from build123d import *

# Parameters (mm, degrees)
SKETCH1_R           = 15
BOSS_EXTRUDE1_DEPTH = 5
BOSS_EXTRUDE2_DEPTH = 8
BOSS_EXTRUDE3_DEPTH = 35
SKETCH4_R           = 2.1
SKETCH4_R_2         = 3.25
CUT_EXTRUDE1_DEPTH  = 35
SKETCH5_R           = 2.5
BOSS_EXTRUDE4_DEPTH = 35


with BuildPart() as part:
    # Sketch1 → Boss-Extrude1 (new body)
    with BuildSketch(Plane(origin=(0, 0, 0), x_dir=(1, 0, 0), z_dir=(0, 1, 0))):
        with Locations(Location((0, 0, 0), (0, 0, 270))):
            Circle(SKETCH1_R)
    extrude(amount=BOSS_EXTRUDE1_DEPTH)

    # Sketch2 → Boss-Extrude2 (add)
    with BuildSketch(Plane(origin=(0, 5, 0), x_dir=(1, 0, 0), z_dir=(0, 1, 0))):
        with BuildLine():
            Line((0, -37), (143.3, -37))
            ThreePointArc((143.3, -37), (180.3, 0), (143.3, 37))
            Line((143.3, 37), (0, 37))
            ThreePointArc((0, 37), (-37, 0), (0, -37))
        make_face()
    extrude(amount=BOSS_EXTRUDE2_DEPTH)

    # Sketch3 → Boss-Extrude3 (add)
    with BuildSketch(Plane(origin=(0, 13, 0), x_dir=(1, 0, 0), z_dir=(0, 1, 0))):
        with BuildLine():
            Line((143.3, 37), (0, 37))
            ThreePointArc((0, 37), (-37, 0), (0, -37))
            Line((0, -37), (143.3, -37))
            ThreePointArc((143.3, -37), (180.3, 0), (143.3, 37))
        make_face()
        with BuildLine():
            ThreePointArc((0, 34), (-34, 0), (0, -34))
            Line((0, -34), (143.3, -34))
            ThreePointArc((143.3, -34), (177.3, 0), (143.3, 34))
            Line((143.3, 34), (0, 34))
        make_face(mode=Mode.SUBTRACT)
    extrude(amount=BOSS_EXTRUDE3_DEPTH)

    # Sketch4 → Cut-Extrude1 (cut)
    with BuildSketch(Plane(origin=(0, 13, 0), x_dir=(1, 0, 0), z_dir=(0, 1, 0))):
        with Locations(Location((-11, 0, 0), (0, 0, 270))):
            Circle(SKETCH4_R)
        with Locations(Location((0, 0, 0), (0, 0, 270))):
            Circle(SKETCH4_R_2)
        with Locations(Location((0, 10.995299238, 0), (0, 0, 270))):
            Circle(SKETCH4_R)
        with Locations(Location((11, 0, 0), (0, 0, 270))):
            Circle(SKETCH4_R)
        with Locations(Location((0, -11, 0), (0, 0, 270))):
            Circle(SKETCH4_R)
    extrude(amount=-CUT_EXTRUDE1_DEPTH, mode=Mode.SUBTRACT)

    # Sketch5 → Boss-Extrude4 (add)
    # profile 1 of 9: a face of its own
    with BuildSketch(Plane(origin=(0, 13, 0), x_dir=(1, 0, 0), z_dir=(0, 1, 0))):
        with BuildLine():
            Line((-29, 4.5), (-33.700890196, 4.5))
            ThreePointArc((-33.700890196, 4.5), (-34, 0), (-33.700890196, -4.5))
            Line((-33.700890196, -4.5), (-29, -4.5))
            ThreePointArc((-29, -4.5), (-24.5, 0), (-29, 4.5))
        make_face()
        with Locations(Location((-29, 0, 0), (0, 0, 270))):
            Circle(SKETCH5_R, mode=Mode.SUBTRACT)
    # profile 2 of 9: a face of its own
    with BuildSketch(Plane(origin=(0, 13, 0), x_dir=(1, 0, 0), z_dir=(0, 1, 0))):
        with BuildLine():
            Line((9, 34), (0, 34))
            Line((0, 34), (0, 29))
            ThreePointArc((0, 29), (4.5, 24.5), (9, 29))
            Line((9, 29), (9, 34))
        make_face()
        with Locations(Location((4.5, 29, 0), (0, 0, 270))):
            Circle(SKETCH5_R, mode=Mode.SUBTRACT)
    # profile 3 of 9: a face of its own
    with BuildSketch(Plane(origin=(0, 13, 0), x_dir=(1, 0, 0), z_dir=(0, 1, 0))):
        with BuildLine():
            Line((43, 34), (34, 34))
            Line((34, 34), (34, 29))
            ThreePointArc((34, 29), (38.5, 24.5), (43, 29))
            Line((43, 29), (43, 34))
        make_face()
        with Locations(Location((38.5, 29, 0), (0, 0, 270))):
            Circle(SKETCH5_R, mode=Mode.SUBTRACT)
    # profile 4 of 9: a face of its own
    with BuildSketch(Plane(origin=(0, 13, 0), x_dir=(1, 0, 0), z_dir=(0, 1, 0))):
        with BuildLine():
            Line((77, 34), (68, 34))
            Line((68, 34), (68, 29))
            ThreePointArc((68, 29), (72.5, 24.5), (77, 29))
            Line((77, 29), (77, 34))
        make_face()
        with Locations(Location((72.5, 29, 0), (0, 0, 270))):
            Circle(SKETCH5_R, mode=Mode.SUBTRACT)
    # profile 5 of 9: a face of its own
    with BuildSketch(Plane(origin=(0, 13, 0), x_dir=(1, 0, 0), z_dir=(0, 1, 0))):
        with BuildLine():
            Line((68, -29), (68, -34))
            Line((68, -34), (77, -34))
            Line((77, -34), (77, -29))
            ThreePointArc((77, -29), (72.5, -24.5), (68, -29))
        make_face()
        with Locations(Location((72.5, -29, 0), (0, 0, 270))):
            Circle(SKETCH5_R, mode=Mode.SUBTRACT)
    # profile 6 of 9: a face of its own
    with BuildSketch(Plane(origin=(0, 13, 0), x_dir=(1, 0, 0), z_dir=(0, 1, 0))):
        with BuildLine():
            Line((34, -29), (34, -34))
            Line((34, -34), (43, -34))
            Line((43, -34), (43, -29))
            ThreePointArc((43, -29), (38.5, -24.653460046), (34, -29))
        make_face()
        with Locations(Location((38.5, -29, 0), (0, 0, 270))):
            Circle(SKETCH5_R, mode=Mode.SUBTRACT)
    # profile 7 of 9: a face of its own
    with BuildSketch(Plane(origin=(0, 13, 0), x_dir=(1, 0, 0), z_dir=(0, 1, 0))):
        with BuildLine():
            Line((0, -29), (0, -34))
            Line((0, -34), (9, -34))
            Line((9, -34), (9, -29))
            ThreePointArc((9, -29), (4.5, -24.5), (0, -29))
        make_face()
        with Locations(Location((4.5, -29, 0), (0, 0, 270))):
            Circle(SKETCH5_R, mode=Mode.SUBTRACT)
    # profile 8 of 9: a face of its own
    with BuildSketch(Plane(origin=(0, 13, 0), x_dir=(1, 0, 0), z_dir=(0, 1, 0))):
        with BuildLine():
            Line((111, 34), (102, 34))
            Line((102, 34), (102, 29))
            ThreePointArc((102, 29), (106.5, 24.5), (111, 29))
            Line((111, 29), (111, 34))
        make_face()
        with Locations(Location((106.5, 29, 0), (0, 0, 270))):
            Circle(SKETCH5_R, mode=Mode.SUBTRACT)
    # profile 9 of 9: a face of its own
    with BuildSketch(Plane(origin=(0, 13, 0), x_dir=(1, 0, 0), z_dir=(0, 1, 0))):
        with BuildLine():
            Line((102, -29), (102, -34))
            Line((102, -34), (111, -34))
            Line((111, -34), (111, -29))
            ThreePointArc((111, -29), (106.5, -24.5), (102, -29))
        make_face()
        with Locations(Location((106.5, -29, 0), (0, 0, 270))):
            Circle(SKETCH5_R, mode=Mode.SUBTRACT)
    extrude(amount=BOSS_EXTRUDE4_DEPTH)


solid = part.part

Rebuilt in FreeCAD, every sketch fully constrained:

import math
import FreeCAD as App
import Part
import Sketcher
Q = App.Units.Quantity

doc = App.newDocument("Part")
body = doc.addObject("PartDesign::Body", "Body")

sketch1 = doc.addObject("Sketcher::SketchObject", "Sketch")
body.addObject(sketch1)
sketch1.AttachmentSupport = (doc.XZ_Plane, [""])
sketch1.MapMode = "FlatFace"
sketch1.addGeometry(Part.Circle(App.Vector(0, 0, 0), App.Vector(0, 0, 1), 15), False)
sketch1.addConstraint(Sketcher.Constraint("Coincident", 0, 3, -1, 1))
sketch1.addConstraint(Sketcher.Constraint("Diameter", 0, Q("30 mm")))
pad1 = doc.addObject("PartDesign::Pad", "Pad")
body.addObject(pad1)
pad1.Profile = sketch1
pad1.Length = 5
pad1.Reversed = True

sketch2 = doc.addObject("Sketcher::SketchObject", "Sketch001")
body.addObject(sketch2)
sketch2.AttachmentSupport = (doc.XZ_Plane, [""])
sketch2.MapMode = "FlatFace"
sketch2.AttachmentOffset = App.Placement(App.Vector(0, 0, -5), App.Rotation())
sketch2.addGeometry(Part.LineSegment(App.Vector(0, 37, 0), App.Vector(143.3, 37, 0)), False)
sketch2.addGeometry(Part.ArcOfCircle(Part.Circle(App.Vector(143.3, 0, 0), App.Vector(0, 0, 1), 37), math.radians(-90), math.radians(90)), False)
sketch2.addGeometry(Part.LineSegment(App.Vector(143.3, -37, 0), App.Vector(0, -37, 0)), False)
sketch2.addGeometry(Part.ArcOfCircle(Part.Circle(App.Vector(0, 0, 0), App.Vector(0, 0, 1), 37), math.radians(90), math.radians(270)), False)
sketch2.addConstraint(Sketcher.Constraint("Tangent", 0, 2, 1, 2))
sketch2.addConstraint(Sketcher.Constraint("Tangent", 1, 1, 2, 1))
sketch2.addConstraint(Sketcher.Constraint("Tangent", 2, 2, 3, 2))
sketch2.addConstraint(Sketcher.Constraint("Tangent", 3, 1, 0, 1))
sketch2.addConstraint(Sketcher.Constraint("Horizontal", 0))
sketch2.addConstraint(Sketcher.Constraint("Horizontal", 2))
sketch2.addConstraint(Sketcher.Constraint("Coincident", 3, 3, -1, 1))
sketch2.addConstraint(Sketcher.Constraint("Radius", 1, Q("37 mm")))
sketch2.addConstraint(Sketcher.Constraint("DistanceX", 0, 1, 0, 2, Q("143.3 mm")))
pad2 = doc.addObject("PartDesign::Pad", "Pad001")
body.addObject(pad2)
pad2.Profile = sketch2
pad2.Length = 8
pad2.Reversed = True

sketch3 = doc.addObject("Sketcher::SketchObject", "Sketch002")
body.addObject(sketch3)
sketch3.AttachmentSupport = (doc.XZ_Plane, [""])
sketch3.MapMode = "FlatFace"
sketch3.AttachmentOffset = App.Placement(App.Vector(0, 0, -13), App.Rotation())
sketch3.addGeometry(Part.LineSegment(App.Vector(143.3, -37, 0), App.Vector(0, -37, 0)), False)
sketch3.addGeometry(Part.ArcOfCircle(Part.Circle(App.Vector(0, 0, 0), App.Vector(0, 0, 1), 37), math.radians(90), math.radians(270)), False)
sketch3.addGeometry(Part.LineSegment(App.Vector(0, 37, 0), App.Vector(143.3, 37, 0)), False)
sketch3.addGeometry(Part.ArcOfCircle(Part.Circle(App.Vector(143.3, 0, 0), App.Vector(0, 0, 1), 37), math.radians(-90), math.radians(90)), False)
sketch3.addGeometry(Part.ArcOfCircle(Part.Circle(App.Vector(0, 0, 0), App.Vector(0, 0, 1), 34), math.radians(90), math.radians(270)), False)
sketch3.addGeometry(Part.LineSegment(App.Vector(0, -34, 0), App.Vector(143.3, -34, 0)), False)
sketch3.addGeometry(Part.ArcOfCircle(Part.Circle(App.Vector(143.3, 0, 0), App.Vector(0, 0, 1), 34), math.radians(-90), math.radians(90)), False)
sketch3.addGeometry(Part.LineSegment(App.Vector(143.3, 34, 0), App.Vector(0, 34, 0)), False)
sketch3.addConstraint(Sketcher.Constraint("Tangent", 0, 2, 1, 2))
sketch3.addConstraint(Sketcher.Constraint("Tangent", 1, 1, 2, 1))
sketch3.addConstraint(Sketcher.Constraint("Tangent", 2, 2, 3, 2))
sketch3.addConstraint(Sketcher.Constraint("Tangent", 3, 1, 0, 1))
sketch3.addConstraint(Sketcher.Constraint("Tangent", 4, 2, 5, 1))
sketch3.addConstraint(Sketcher.Constraint("Tangent", 5, 2, 6, 1))
sketch3.addConstraint(Sketcher.Constraint("Tangent", 6, 2, 7, 1))
sketch3.addConstraint(Sketcher.Constraint("Tangent", 7, 2, 4, 1))
sketch3.addConstraint(Sketcher.Constraint("Horizontal", 0))
sketch3.addConstraint(Sketcher.Constraint("Horizontal", 2))
sketch3.addConstraint(Sketcher.Constraint("Horizontal", 5))
sketch3.addConstraint(Sketcher.Constraint("Horizontal", 7))
sketch3.addConstraint(Sketcher.Constraint("Coincident", 1, 3, -1, 1))
sketch3.addConstraint(Sketcher.Constraint("Coincident", 4, 3, -1, 1))
sketch3.addConstraint(Sketcher.Constraint("Vertical", 6, 3, 2, 2))
sketch3.addConstraint(Sketcher.Constraint("Radius", 1, Q("37 mm")))
sketch3.addConstraint(Sketcher.Constraint("Radius", 4, Q("34 mm")))
sketch3.addConstraint(Sketcher.Constraint("DistanceX", 0, 2, 0, 1, Q("143.3 mm")))
pad3 = doc.addObject("PartDesign::Pad", "Pad002")
body.addObject(pad3)
pad3.Profile = sketch3
pad3.Length = 35
pad3.Reversed = True

sketch4 = doc.addObject("Sketcher::SketchObject", "Sketch003")
body.addObject(sketch4)
sketch4.AttachmentSupport = (doc.XZ_Plane, [""])
sketch4.MapMode = "FlatFace"
sketch4.AttachmentOffset = App.Placement(App.Vector(0, 0, -13), App.Rotation())
sketch4.addGeometry(Part.Circle(App.Vector(-11, 0, 0), App.Vector(0, 0, 1), 2.1), False)
sketch4.addGeometry(Part.Circle(App.Vector(0, 0, 0), App.Vector(0, 0, 1), 3.25), False)
sketch4.addGeometry(Part.Circle(App.Vector(0, -10.995299, 0), App.Vector(0, 0, 1), 2.1), False)
sketch4.addGeometry(Part.Circle(App.Vector(11, 0, 0), App.Vector(0, 0, 1), 2.1), False)
sketch4.addGeometry(Part.Circle(App.Vector(0, 11, 0), App.Vector(0, 0, 1), 2.1), False)
sketch4.addConstraint(Sketcher.Constraint("Coincident", 1, 3, -1, 1))
sketch4.addConstraint(Sketcher.Constraint("Equal", 0, 2))
sketch4.addConstraint(Sketcher.Constraint("Equal", 2, 3))
sketch4.addConstraint(Sketcher.Constraint("Equal", 3, 4))
sketch4.addConstraint(Sketcher.Constraint("Symmetric", 0, 3, 3, 3, -1, 1))
sketch4.addConstraint(Sketcher.Constraint("PointOnObject", 0, 3, -1))
sketch4.addConstraint(Sketcher.Constraint("PointOnObject", 2, 3, -2))
sketch4.addConstraint(Sketcher.Constraint("PointOnObject", 4, 3, -2))
sketch4.addConstraint(Sketcher.Constraint("Diameter", 0, Q("4.2 mm")))
sketch4.addConstraint(Sketcher.Constraint("Diameter", 1, Q("6.5 mm")))
sketch4.addConstraint(Sketcher.Constraint("DistanceX", 0, 3, -1, 1, Q("11 mm")))
sketch4.addConstraint(Sketcher.Constraint("DistanceY", -1, 1, 4, 3, Q("11 mm")))
sketch4.addConstraint(Sketcher.Constraint("DistanceY", 2, 3, -1, 1, Q("10.995299 mm")))
pocket1 = doc.addObject("PartDesign::Pocket", "Pocket")
body.addObject(pocket1)
pocket1.Profile = sketch4
pocket1.Length = 35
pocket1.Reversed = True

sketch5 = doc.addObject("Sketcher::SketchObject", "Sketch004")
body.addObject(sketch5)
sketch5.AttachmentSupport = (doc.XZ_Plane, [""])
sketch5.MapMode = "FlatFace"
sketch5.AttachmentOffset = App.Placement(App.Vector(0, 0, -13), App.Rotation())
sketch5.addGeometry(Part.LineSegment(App.Vector(-29, -4.5, 0), App.Vector(-33.70089, -4.5, 0)), False)
sketch5.addGeometry(Part.ArcOfCircle(Part.Circle(App.Vector(0, 0, 0), App.Vector(0, 0, 1), 34), math.radians(172.394419), math.radians(187.605581)), False)
sketch5.addGeometry(Part.LineSegment(App.Vector(-33.70089, 4.5, 0), App.Vector(-29, 4.5, 0)), False)
sketch5.addGeometry(Part.ArcOfCircle(Part.Circle(App.Vector(-29, 0, 0), App.Vector(0, 0, 1), 4.5), math.radians(-90), math.radians(90)), False)
sketch5.addGeometry(Part.Circle(App.Vector(-29, 0, 0), App.Vector(0, 0, 1), 2.5), False)
sketch5.addGeometry(Part.LineSegment(App.Vector(9, -34, 0), App.Vector(0, -34, 0)), False)
sketch5.addGeometry(Part.LineSegment(App.Vector(0, -34, 0), App.Vector(0, -29, 0)), False)
sketch5.addGeometry(Part.ArcOfCircle(Part.Circle(App.Vector(4.5, -29, 0), App.Vector(0, 0, 1), 4.5), math.radians(0), math.radians(180)), False)
sketch5.addGeometry(Part.LineSegment(App.Vector(9, -29, 0), App.Vector(9, -34, 0)), False)
sketch5.addGeometry(Part.Circle(App.Vector(4.5, -29, 0), App.Vector(0, 0, 1), 2.5), False)
sketch5.addGeometry(Part.LineSegment(App.Vector(43, -34, 0), App.Vector(34, -34, 0)), False)
sketch5.addGeometry(Part.LineSegment(App.Vector(34, -34, 0), App.Vector(34, -29, 0)), False)
sketch5.addGeometry(Part.ArcOfCircle(Part.Circle(App.Vector(38.5, -29, 0), App.Vector(0, 0, 1), 4.5), math.radians(0), math.radians(180)), False)
sketch5.addGeometry(Part.LineSegment(App.Vector(43, -29, 0), App.Vector(43, -34, 0)), False)
sketch5.addGeometry(Part.Circle(App.Vector(38.5, -29, 0), App.Vector(0, 0, 1), 2.5), False)
sketch5.addGeometry(Part.LineSegment(App.Vector(77, -34, 0), App.Vector(68, -34, 0)), False)
sketch5.addGeometry(Part.LineSegment(App.Vector(68, -34, 0), App.Vector(68, -29, 0)), False)
sketch5.addGeometry(Part.ArcOfCircle(Part.Circle(App.Vector(72.5, -29, 0), App.Vector(0, 0, 1), 4.5), math.radians(0), math.radians(180)), False)
sketch5.addGeometry(Part.LineSegment(App.Vector(77, -29, 0), App.Vector(77, -34, 0)), False)
sketch5.addGeometry(Part.Circle(App.Vector(72.5, -29, 0), App.Vector(0, 0, 1), 2.5), False)
sketch5.addGeometry(Part.LineSegment(App.Vector(68, 29, 0), App.Vector(68, 34, 0)), False)
sketch5.addGeometry(Part.LineSegment(App.Vector(68, 34, 0), App.Vector(77, 34, 0)), False)
sketch5.addGeometry(Part.LineSegment(App.Vector(77, 34, 0), App.Vector(77, 29, 0)), False)
sketch5.addGeometry(Part.ArcOfCircle(Part.Circle(App.Vector(72.5, 29, 0), App.Vector(0, 0, 1), 4.5), math.radians(180), math.radians(360)), False)
sketch5.addGeometry(Part.Circle(App.Vector(72.5, 29, 0), App.Vector(0, 0, 1), 2.5), False)
sketch5.addGeometry(Part.LineSegment(App.Vector(34, 29, 0), App.Vector(34, 34, 0)), False)
sketch5.addGeometry(Part.LineSegment(App.Vector(34, 34, 0), App.Vector(43, 34, 0)), False)
sketch5.addGeometry(Part.LineSegment(App.Vector(43, 34, 0), App.Vector(43, 29, 0)), False)
sketch5.addGeometry(Part.ArcOfCircle(Part.Circle(App.Vector(38.5, 29.156169, 0), App.Vector(0, 0, 1), 4.502709), math.radians(-178.012391), math.radians(-1.987609)), False)
sketch5.addGeometry(Part.Circle(App.Vector(38.5, 29, 0), App.Vector(0, 0, 1), 2.5), False)
sketch5.addGeometry(Part.LineSegment(App.Vector(0, 29, 0), App.Vector(0, 34, 0)), False)
sketch5.addGeometry(Part.LineSegment(App.Vector(0, 34, 0), App.Vector(9, 34, 0)), False)
sketch5.addGeometry(Part.LineSegment(App.Vector(9, 34, 0), App.Vector(9, 29, 0)), False)
sketch5.addGeometry(Part.ArcOfCircle(Part.Circle(App.Vector(4.5, 29, 0), App.Vector(0, 0, 1), 4.5), math.radians(180), math.radians(360)), False)
sketch5.addGeometry(Part.Circle(App.Vector(4.5, 29, 0), App.Vector(0, 0, 1), 2.5), False)
sketch5.addGeometry(Part.LineSegment(App.Vector(111, -34, 0), App.Vector(102, -34, 0)), False)
sketch5.addGeometry(Part.LineSegment(App.Vector(102, -34, 0), App.Vector(102, -29, 0)), False)
sketch5.addGeometry(Part.ArcOfCircle(Part.Circle(App.Vector(106.5, -29, 0), App.Vector(0, 0, 1), 4.5), math.radians(0), math.radians(180)), False)
sketch5.addGeometry(Part.LineSegment(App.Vector(111, -29, 0), App.Vector(111, -34, 0)), False)
sketch5.addGeometry(Part.Circle(App.Vector(106.5, -29, 0), App.Vector(0, 0, 1), 2.5), False)
sketch5.addGeometry(Part.LineSegment(App.Vector(102, 29, 0), App.Vector(102, 34, 0)), False)
sketch5.addGeometry(Part.LineSegment(App.Vector(102, 34, 0), App.Vector(111, 34, 0)), False)
sketch5.addGeometry(Part.LineSegment(App.Vector(111, 34, 0), App.Vector(111, 29, 0)), False)
sketch5.addGeometry(Part.ArcOfCircle(Part.Circle(App.Vector(106.5, 29, 0), App.Vector(0, 0, 1), 4.5), math.radians(180), math.radians(360)), False)
sketch5.addGeometry(Part.Circle(App.Vector(106.5, 29, 0), App.Vector(0, 0, 1), 2.5), False)
sketch5.addConstraint(Sketcher.Constraint("Coincident", 0, 2, 1, 2))
sketch5.addConstraint(Sketcher.Constraint("Coincident", 1, 1, 2, 1))
sketch5.addConstraint(Sketcher.Constraint("Tangent", 2, 2, 3, 2))
sketch5.addConstraint(Sketcher.Constraint("Tangent", 3, 1, 0, 1))
sketch5.addConstraint(Sketcher.Constraint("Coincident", 5, 2, 6, 1))
sketch5.addConstraint(Sketcher.Constraint("Tangent", 6, 2, 7, 2))
sketch5.addConstraint(Sketcher.Constraint("Tangent", 7, 1, 8, 1))
sketch5.addConstraint(Sketcher.Constraint("Coincident", 8, 2, 5, 1))
sketch5.addConstraint(Sketcher.Constraint("Coincident", 10, 2, 11, 1))
sketch5.addConstraint(Sketcher.Constraint("Tangent", 11, 2, 12, 2))
sketch5.addConstraint(Sketcher.Constraint("Tangent", 12, 1, 13, 1))
sketch5.addConstraint(Sketcher.Constraint("Coincident", 13, 2, 10, 1))
sketch5.addConstraint(Sketcher.Constraint("Coincident", 15, 2, 16, 1))
sketch5.addConstraint(Sketcher.Constraint("Tangent", 16, 2, 17, 2))
sketch5.addConstraint(Sketcher.Constraint("Tangent", 17, 1, 18, 1))
sketch5.addConstraint(Sketcher.Constraint("Coincident", 18, 2, 15, 1))
sketch5.addConstraint(Sketcher.Constraint("Coincident", 20, 2, 21, 1))
sketch5.addConstraint(Sketcher.Constraint("Coincident", 21, 2, 22, 1))
sketch5.addConstraint(Sketcher.Constraint("Tangent", 22, 2, 23, 2))
sketch5.addConstraint(Sketcher.Constraint("Tangent", 23, 1, 20, 1))
sketch5.addConstraint(Sketcher.Constraint("Coincident", 25, 2, 26, 1))
sketch5.addConstraint(Sketcher.Constraint("Coincident", 26, 2, 27, 1))
sketch5.addConstraint(Sketcher.Constraint("Coincident", 27, 2, 28, 2))
sketch5.addConstraint(Sketcher.Constraint("Coincident", 28, 1, 25, 1))
sketch5.addConstraint(Sketcher.Constraint("Coincident", 30, 2, 31, 1))
sketch5.addConstraint(Sketcher.Constraint("Coincident", 31, 2, 32, 1))
sketch5.addConstraint(Sketcher.Constraint("Tangent", 32, 2, 33, 2))
sketch5.addConstraint(Sketcher.Constraint("Tangent", 33, 1, 30, 1))
sketch5.addConstraint(Sketcher.Constraint("Coincident", 35, 2, 36, 1))
sketch5.addConstraint(Sketcher.Constraint("Tangent", 36, 2, 37, 2))
sketch5.addConstraint(Sketcher.Constraint("Tangent", 37, 1, 38, 1))
sketch5.addConstraint(Sketcher.Constraint("Coincident", 38, 2, 35, 1))
sketch5.addConstraint(Sketcher.Constraint("Coincident", 40, 2, 41, 1))
sketch5.addConstraint(Sketcher.Constraint("Coincident", 41, 2, 42, 1))
sketch5.addConstraint(Sketcher.Constraint("Tangent", 42, 2, 43, 2))
sketch5.addConstraint(Sketcher.Constraint("Tangent", 43, 1, 40, 1))
sketch5.addConstraint(Sketcher.Constraint("Horizontal", 0))
sketch5.addConstraint(Sketcher.Constraint("Horizontal", 2))
sketch5.addConstraint(Sketcher.Constraint("Horizontal", 5))
sketch5.addConstraint(Sketcher.Constraint("Vertical", 6))
sketch5.addConstraint(Sketcher.Constraint("Vertical", 8))
sketch5.addConstraint(Sketcher.Constraint("Horizontal", 10))
sketch5.addConstraint(Sketcher.Constraint("Vertical", 11))
sketch5.addConstraint(Sketcher.Constraint("Vertical", 13))
sketch5.addConstraint(Sketcher.Constraint("Horizontal", 15))
sketch5.addConstraint(Sketcher.Constraint("Vertical", 16))
sketch5.addConstraint(Sketcher.Constraint("Vertical", 18))
sketch5.addConstraint(Sketcher.Constraint("Vertical", 20))
sketch5.addConstraint(Sketcher.Constraint("Horizontal", 21))
sketch5.addConstraint(Sketcher.Constraint("Vertical", 22))
sketch5.addConstraint(Sketcher.Constraint("Vertical", 25))
sketch5.addConstraint(Sketcher.Constraint("Horizontal", 26))
sketch5.addConstraint(Sketcher.Constraint("Vertical", 27))
sketch5.addConstraint(Sketcher.Constraint("Vertical", 30))
sketch5.addConstraint(Sketcher.Constraint("Horizontal", 31))
sketch5.addConstraint(Sketcher.Constraint("Vertical", 32))
sketch5.addConstraint(Sketcher.Constraint("Horizontal", 35))
sketch5.addConstraint(Sketcher.Constraint("Vertical", 36))
sketch5.addConstraint(Sketcher.Constraint("Vertical", 38))
sketch5.addConstraint(Sketcher.Constraint("Vertical", 40))
sketch5.addConstraint(Sketcher.Constraint("Horizontal", 41))
sketch5.addConstraint(Sketcher.Constraint("Vertical", 42))
sketch5.addConstraint(Sketcher.Constraint("Coincident", 1, 3, -1, 1))
sketch5.addConstraint(Sketcher.Constraint("Coincident", 4, 3, 3, 3))
sketch5.addConstraint(Sketcher.Constraint("Coincident", 9, 3, 7, 3))
sketch5.addConstraint(Sketcher.Constraint("Coincident", 14, 3, 12, 3))
sketch5.addConstraint(Sketcher.Constraint("Coincident", 19, 3, 17, 3))
sketch5.addConstraint(Sketcher.Constraint("Coincident", 24, 3, 23, 3))
sketch5.addConstraint(Sketcher.Constraint("Coincident", 34, 3, 33, 3))
sketch5.addConstraint(Sketcher.Constraint("Coincident", 39, 3, 37, 3))
sketch5.addConstraint(Sketcher.Constraint("Coincident", 44, 3, 43, 3))
sketch5.addConstraint(Sketcher.Constraint("Equal", 3, 7))
sketch5.addConstraint(Sketcher.Constraint("Equal", 4, 9))
sketch5.addConstraint(Sketcher.Constraint("Equal", 7, 12))
sketch5.addConstraint(Sketcher.Constraint("Equal", 9, 14))
sketch5.addConstraint(Sketcher.Constraint("Equal", 12, 17))
sketch5.addConstraint(Sketcher.Constraint("Equal", 14, 19))
sketch5.addConstraint(Sketcher.Constraint("Equal", 17, 23))
sketch5.addConstraint(Sketcher.Constraint("Equal", 19, 24))
sketch5.addConstraint(Sketcher.Constraint("Equal", 24, 29))
sketch5.addConstraint(Sketcher.Constraint("Equal", 23, 33))
sketch5.addConstraint(Sketcher.Constraint("Equal", 29, 34))
sketch5.addConstraint(Sketcher.Constraint("Equal", 33, 37))
sketch5.addConstraint(Sketcher.Constraint("Equal", 34, 39))
sketch5.addConstraint(Sketcher.Constraint("Equal", 37, 43))
sketch5.addConstraint(Sketcher.Constraint("Equal", 39, 44))
sketch5.addConstraint(Sketcher.Constraint("Symmetric", 5, 2, 30, 2, -1, 1))
sketch5.addConstraint(Sketcher.Constraint("Symmetric", 17, 3, 23, 3, -1))
sketch5.addConstraint(Sketcher.Constraint("Symmetric", 12, 3, 29, 3, -1))
sketch5.addConstraint(Sketcher.Constraint("Symmetric", 7, 3, 33, 3, -1))
sketch5.addConstraint(Sketcher.Constraint("Symmetric", 37, 3, 43, 3, -1))
sketch5.addConstraint(Sketcher.Constraint("Symmetric", 10, 2, 25, 2, -1))
sketch5.addConstraint(Sketcher.Constraint("Symmetric", 12, 1, 27, 2, -1))
sketch5.addConstraint(Sketcher.Constraint("PointOnObject", 3, 3, -1))
sketch5.addConstraint(Sketcher.Constraint("Horizontal", 9, 3, 12, 3))
sketch5.addConstraint(Sketcher.Constraint("Horizontal", 14, 3, 17, 3))
sketch5.addConstraint(Sketcher.Constraint("Horizontal", 19, 3, 37, 3))
sketch5.addConstraint(Sketcher.Constraint("Horizontal", 8, 2, 10, 2))
sketch5.addConstraint(Sketcher.Constraint("Horizontal", 13, 2, 15, 2))
sketch5.addConstraint(Sketcher.Constraint("Horizontal", 21, 2, 25, 2))
sketch5.addConstraint(Sketcher.Constraint("Horizontal", 27, 2, 28, 1))
sketch5.addConstraint(Sketcher.Constraint("Horizontal", 18, 2, 35, 2))
sketch5.addConstraint(Sketcher.Constraint("Horizontal", 31, 2, 40, 2))
sketch5.addConstraint(Sketcher.Constraint("Diameter", 4, Q("5 mm")))
sketch5.addConstraint(Sketcher.Constraint("Radius", 1, Q("34 mm")))
sketch5.addConstraint(Sketcher.Constraint("Radius", 3, Q("4.5 mm")))
sketch5.addConstraint(Sketcher.Constraint("DistanceY", 6, 1, 6, 2, Q("5 mm")))
sketch5.addConstraint(Sketcher.Constraint("DistanceX", 3, 3, -1, 1, Q("29 mm")))
sketch5.addConstraint(Sketcher.Constraint("DistanceY", 7, 3, -1, 1, Q("29 mm")))
sketch5.addConstraint(Sketcher.Constraint("DistanceX", -1, 1, 10, 2, Q("34 mm")))
sketch5.addConstraint(Sketcher.Constraint("DistanceX", -1, 1, 15, 2, Q("68 mm")))
sketch5.addConstraint(Sketcher.Constraint("DistanceX", -1, 1, 35, 2, Q("102 mm")))
sketch5.addConstraint(Sketcher.Constraint("Radius", 28, Q("4.502709 mm")))
pad4 = doc.addObject("PartDesign::Pad", "Pad003")
body.addObject(pad4)
pad4.Profile = sketch5
pad4.Length = 35
pad4.Reversed = True

doc.recompute()
